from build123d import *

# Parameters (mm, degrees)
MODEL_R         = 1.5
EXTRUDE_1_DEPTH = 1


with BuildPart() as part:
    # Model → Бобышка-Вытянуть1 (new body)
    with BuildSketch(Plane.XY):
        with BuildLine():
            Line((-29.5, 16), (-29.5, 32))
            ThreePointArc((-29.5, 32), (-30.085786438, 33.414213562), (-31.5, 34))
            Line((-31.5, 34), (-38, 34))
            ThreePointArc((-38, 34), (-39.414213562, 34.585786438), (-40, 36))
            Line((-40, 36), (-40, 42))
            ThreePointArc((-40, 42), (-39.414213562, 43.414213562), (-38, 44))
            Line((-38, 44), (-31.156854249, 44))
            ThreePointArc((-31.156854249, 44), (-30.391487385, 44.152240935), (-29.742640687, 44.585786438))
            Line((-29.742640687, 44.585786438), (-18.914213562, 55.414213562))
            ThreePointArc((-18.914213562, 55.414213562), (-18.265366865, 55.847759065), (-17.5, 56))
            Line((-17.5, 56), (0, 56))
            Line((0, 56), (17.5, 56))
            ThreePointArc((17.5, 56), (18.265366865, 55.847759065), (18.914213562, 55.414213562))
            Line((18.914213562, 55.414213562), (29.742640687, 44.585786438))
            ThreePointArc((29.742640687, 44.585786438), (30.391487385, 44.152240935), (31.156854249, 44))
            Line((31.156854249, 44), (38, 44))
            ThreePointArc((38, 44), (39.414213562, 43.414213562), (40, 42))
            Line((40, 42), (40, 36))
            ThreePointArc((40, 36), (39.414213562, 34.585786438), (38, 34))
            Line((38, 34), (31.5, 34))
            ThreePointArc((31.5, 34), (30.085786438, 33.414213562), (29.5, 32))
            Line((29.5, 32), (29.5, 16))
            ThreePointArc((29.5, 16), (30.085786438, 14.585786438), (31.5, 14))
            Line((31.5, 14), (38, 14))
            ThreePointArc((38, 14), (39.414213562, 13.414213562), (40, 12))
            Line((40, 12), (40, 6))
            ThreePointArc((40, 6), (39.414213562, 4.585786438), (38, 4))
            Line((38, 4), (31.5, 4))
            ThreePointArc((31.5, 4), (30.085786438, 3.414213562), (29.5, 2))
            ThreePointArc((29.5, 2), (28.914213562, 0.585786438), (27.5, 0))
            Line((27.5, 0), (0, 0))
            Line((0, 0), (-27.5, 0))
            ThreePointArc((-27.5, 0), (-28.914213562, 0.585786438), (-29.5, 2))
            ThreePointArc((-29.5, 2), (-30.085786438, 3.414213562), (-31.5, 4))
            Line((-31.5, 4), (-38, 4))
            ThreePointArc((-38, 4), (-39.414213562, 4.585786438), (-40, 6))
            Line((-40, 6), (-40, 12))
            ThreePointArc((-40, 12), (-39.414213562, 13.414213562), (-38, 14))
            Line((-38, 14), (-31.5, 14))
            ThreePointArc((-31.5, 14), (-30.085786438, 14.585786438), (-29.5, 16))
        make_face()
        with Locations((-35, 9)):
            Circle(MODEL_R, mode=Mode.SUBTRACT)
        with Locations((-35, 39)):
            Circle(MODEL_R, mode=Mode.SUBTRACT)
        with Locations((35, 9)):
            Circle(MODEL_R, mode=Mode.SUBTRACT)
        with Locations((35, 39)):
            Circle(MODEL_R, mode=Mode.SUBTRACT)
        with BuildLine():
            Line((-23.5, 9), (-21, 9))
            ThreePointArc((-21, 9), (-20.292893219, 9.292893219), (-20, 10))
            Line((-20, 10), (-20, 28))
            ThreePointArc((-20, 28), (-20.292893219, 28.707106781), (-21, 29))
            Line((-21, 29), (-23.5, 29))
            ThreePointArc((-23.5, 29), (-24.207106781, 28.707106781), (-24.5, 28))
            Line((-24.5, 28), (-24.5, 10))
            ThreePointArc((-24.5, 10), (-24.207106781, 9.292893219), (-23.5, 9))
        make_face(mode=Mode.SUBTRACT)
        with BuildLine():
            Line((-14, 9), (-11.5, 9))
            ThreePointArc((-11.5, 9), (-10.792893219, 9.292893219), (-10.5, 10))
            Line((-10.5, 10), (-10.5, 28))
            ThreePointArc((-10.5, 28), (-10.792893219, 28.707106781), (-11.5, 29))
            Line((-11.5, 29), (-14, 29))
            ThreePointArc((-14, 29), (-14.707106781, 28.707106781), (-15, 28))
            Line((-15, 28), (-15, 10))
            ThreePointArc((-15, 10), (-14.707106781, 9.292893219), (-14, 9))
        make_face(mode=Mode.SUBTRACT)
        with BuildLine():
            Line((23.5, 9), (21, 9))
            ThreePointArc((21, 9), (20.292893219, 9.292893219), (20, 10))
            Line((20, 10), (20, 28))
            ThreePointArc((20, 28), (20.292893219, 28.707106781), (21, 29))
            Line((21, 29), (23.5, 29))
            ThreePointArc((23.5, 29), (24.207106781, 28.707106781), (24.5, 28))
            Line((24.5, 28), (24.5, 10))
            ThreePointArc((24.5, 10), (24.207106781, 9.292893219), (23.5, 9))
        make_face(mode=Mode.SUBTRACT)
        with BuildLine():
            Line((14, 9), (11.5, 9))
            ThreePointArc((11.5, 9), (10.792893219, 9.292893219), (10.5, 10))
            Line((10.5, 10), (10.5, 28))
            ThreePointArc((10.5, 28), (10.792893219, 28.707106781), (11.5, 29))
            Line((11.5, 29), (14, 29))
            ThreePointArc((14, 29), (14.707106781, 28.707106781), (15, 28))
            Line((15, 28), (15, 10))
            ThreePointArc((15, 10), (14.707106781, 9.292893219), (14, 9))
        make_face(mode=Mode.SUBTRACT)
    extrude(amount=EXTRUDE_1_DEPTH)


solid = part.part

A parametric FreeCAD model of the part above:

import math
import FreeCAD as App
import Part
import Sketcher
Q = App.Units.Quantity

doc = App.newDocument("Part")
params = doc.addObject("Spreadsheet::Sheet", "Params")
for row, (alias, value) in enumerate([
    ("sketch1_diameter", "3 mm"),
    ("sketch1_radius", "2 mm"),
    ("sketch1_radius2", "1 mm"),
    ("sketch1_width", "55 mm"),
    ("sketch1_width2", "35 mm"),
    ("pad1_length", "1 mm"),
], start=1):
    params.set(f"A{row}", alias)
    params.set(f"B{row}", "=" + value)
    params.setAlias(f"B{row}", alias)

body = doc.addObject("PartDesign::Body", "Body")

# Sketch on XY plane
sketch1 = body.newObject("Sketcher::SketchObject", "Sketch")
sketch1.AttachmentSupport = (doc.getObject("XY_Plane"), [""])
sketch1.MapMode = "FlatFace"
sketch1.addGeometry(Part.LineSegment(App.Vector(-29.5, 32, 0), App.Vector(-29.5, 16, 0)), False)
sketch1.addGeometry(Part.ArcOfCircle(Part.Circle(App.Vector(-31.5, 16, 0), App.Vector(0, 0, 1), 2), math.radians(-90), math.radians(0)), False)
sketch1.addGeometry(Part.LineSegment(App.Vector(-31.5, 14, 0), App.Vector(-38, 14, 0)), False)
sketch1.addGeometry(Part.ArcOfCircle(Part.Circle(App.Vector(-38, 12, 0), App.Vector(0, 0, 1), 2), math.radians(90), math.radians(180)), False)
sketch1.addGeometry(Part.LineSegment(App.Vector(-40, 12, 0), App.Vector(-40, 6, 0)), False)
sketch1.addGeometry(Part.ArcOfCircle(Part.Circle(App.Vector(-38, 6, 0), App.Vector(0, 0, 1), 2), math.radians(-180), math.radians(-90)), False)
sketch1.addGeometry(Part.LineSegment(App.Vector(-38, 4, 0), App.Vector(-31.5, 4, 0)), False)
sketch1.addGeometry(Part.ArcOfCircle(Part.Circle(App.Vector(-31.5, 2, 0), App.Vector(0, 0, 1), 2), math.radians(0), math.radians(90)), False)
sketch1.addGeometry(Part.ArcOfCircle(Part.Circle(App.Vector(-27.5, 2, 0), App.Vector(0, 0, 1), 2), math.radians(-180), math.radians(-90)), False)
sketch1.addGeometry(Part.LineSegment(App.Vector(-27.5, 0, 0), App.Vector(27.5, 0, 0)), False)
sketch1.addGeometry(Part.ArcOfCircle(Part.Circle(App.Vector(27.5, 2, 0), App.Vector(0, 0, 1), 2), math.radians(-90), math.radians(0)), False)
sketch1.addGeometry(Part.ArcOfCircle(Part.Circle(App.Vector(31.5, 2, 0), App.Vector(0, 0, 1), 2), math.radians(90), math.radians(180)), False)
sketch1.addGeometry(Part.LineSegment(App.Vector(31.5, 4, 0), App.Vector(38, 4, 0)), False)
sketch1.addGeometry(Part.ArcOfCircle(Part.Circle(App.Vector(38, 6, 0), App.Vector(0, 0, 1), 2), math.radians(-90), math.radians(0)), False)
sketch1.addGeometry(Part.LineSegment(App.Vector(40, 6, 0), App.Vector(40, 12, 0)), False)
sketch1.addGeometry(Part.ArcOfCircle(Part.Circle(App.Vector(38, 12, 0), App.Vector(0, 0, 1), 2), math.radians(0), math.radians(90)), False)
sketch1.addGeometry(Part.LineSegment(App.Vector(38, 14, 0), App.Vector(31.5, 14, 0)), False)
sketch1.addGeometry(Part.ArcOfCircle(Part.Circle(App.Vector(31.5, 16, 0), App.Vector(0, 0, 1), 2), math.radians(-180), math.radians(-90)), False)
sketch1.addGeometry(Part.LineSegment(App.Vector(29.5, 16, 0), App.Vector(29.5, 32, 0)), False)
sketch1.addGeometry(Part.ArcOfCircle(Part.Circle(App.Vector(31.5, 32, 0), App.Vector(0, 0, 1), 2), math.radians(90), math.radians(180)), False)
sketch1.addGeometry(Part.LineSegment(App.Vector(31.5, 34, 0), App.Vector(38, 34, 0)), False)
sketch1.addGeometry(Part.ArcOfCircle(Part.Circle(App.Vector(38, 36, 0), App.Vector(0, 0, 1), 2), math.radians(-90), math.radians(0)), False)
sketch1.addGeometry(Part.LineSegment(App.Vector(40, 36, 0), App.Vector(40, 42, 0)), False)
sketch1.addGeometry(Part.ArcOfCircle(Part.Circle(App.Vector(38, 42, 0), App.Vector(0, 0, 1), 2), math.radians(0), math.radians(90)), False)
sketch1.addGeometry(Part.LineSegment(App.Vector(38, 44, 0), App.Vector(31.156854, 44, 0)), False)
sketch1.addGeometry(Part.ArcOfCircle(Part.Circle(App.Vector(31.156854, 46, 0), App.Vector(0, 0, 1), 2), math.radians(-135), math.radians(-90)), False)
sketch1.addGeometry(Part.LineSegment(App.Vector(29.742641, 44.585786, 0), App.Vector(18.914214, 55.414214, 0)), False)
sketch1.addGeometry(Part.ArcOfCircle(Part.Circle(App.Vector(17.5, 54, 0), App.Vector(0, 0, 1), 2), math.radians(45), math.radians(90)), False)
sketch1.addGeometry(Part.LineSegment(App.Vector(17.5, 56, 0), App.Vector(-17.5, 56, 0)), False)
sketch1.addGeometry(Part.ArcOfCircle(Part.Circle(App.Vector(-17.5, 54, 0), App.Vector(0, 0, 1), 2), math.radians(90), math.radians(135)), False)
sketch1.addGeometry(Part.LineSegment(App.Vector(-18.914214, 55.414214, 0), App.Vector(-29.742641, 44.585786, 0)), False)
sketch1.addGeometry(Part.ArcOfCircle(Part.Circle(App.Vector(-31.156854, 46, 0), App.Vector(0, 0, 1), 2), math.radians(-90), math.radians(-45)), False)
sketch1.addGeometry(Part.LineSegment(App.Vector(-31.156854, 44, 0), App.Vector(-38, 44, 0)), False)
sketch1.addGeometry(Part.ArcOfCircle(Part.Circle(App.Vector(-38, 42, 0), App.Vector(0, 0, 1), 2), math.radians(90), math.radians(180)), False)
sketch1.addGeometry(Part.LineSegment(App.Vector(-40, 42, 0), App.Vector(-40, 36, 0)), False)
sketch1.addGeometry(Part.ArcOfCircle(Part.Circle(App.Vector(-38, 36, 0), App.Vector(0, 0, 1), 2), math.radians(-180), math.radians(-90)), False)
sketch1.addGeometry(Part.LineSegment(App.Vector(-38, 34, 0), App.Vector(-31.5, 34, 0)), False)
sketch1.addGeometry(Part.ArcOfCircle(Part.Circle(App.Vector(-31.5, 32, 0), App.Vector(0, 0, 1), 2), math.radians(0), math.radians(90)), False)
sketch1.addGeometry(Part.Circle(App.Vector(35, 9, 0), App.Vector(0, 0, 1), 1.5), False)
sketch1.addGeometry(Part.LineSegment(App.Vector(23.5, 9, 0), App.Vector(21, 9, 0)), False)
sketch1.addGeometry(Part.ArcOfCircle(Part.Circle(App.Vector(21, 10, 0), App.Vector(0, 0, 1), 1), math.radians(-180), math.radians(-90)), False)
sketch1.addGeometry(Part.LineSegment(App.Vector(20, 10, 0), App.Vector(20, 28, 0)), False)
sketch1.addGeometry(Part.ArcOfCircle(Part.Circle(App.Vector(21, 28, 0), App.Vector(0, 0, 1), 1), math.radians(90), math.radians(180)), False)
sketch1.addGeometry(Part.LineSegment(App.Vector(21, 29, 0), App.Vector(23.5, 29, 0)), False)
sketch1.addGeometry(Part.ArcOfCircle(Part.Circle(App.Vector(23.5, 28, 0), App.Vector(0, 0, 1), 1), math.radians(0), math.radians(90)), False)
sketch1.addGeometry(Part.LineSegment(App.Vector(24.5, 28, 0), App.Vector(24.5, 10, 0)), False)
sketch1.addGeometry(Part.ArcOfCircle(Part.Circle(App.Vector(23.5, 10, 0), App.Vector(0, 0, 1), 1), math.radians(-90), math.radians(0)), False)
sketch1.addGeometry(Part.LineSegment(App.Vector(14, 9, 0), App.Vector(11.5, 9, 0)), False)
sketch1.addGeometry(Part.ArcOfCircle(Part.Circle(App.Vector(11.5, 10, 0), App.Vector(0, 0, 1), 1), math.radians(-180), math.radians(-90)), False)
sketch1.addGeometry(Part.LineSegment(App.Vector(10.5, 10, 0), App.Vector(10.5, 28, 0)), False)
sketch1.addGeometry(Part.ArcOfCircle(Part.Circle(App.Vector(11.5, 28, 0), App.Vector(0, 0, 1), 1), math.radians(90), math.radians(180)), False)
sketch1.addGeometry(Part.LineSegment(App.Vector(11.5, 29, 0), App.Vector(14, 29, 0)), False)
sketch1.addGeometry(Part.ArcOfCircle(Part.Circle(App.Vector(14, 28, 0), App.Vector(0, 0, 1), 1), math.radians(0), math.radians(90)), False)
sketch1.addGeometry(Part.LineSegment(App.Vector(15, 28, 0), App.Vector(15, 10, 0)), False)
sketch1.addGeometry(Part.ArcOfCircle(Part.Circle(App.Vector(14, 10, 0), App.Vector(0, 0, 1), 1), math.radians(-90), math.radians(0)), False)
sketch1.addGeometry(Part.Circle(App.Vector(-35, 9, 0), App.Vector(0, 0, 1), 1.5), False)
sketch1.addGeometry(Part.ArcOfCircle(Part.Circle(App.Vector(-14, 10, 0), App.Vector(0, 0, 1), 1), math.radians(-180), math.radians(-90)), False)
sketch1.addGeometry(Part.LineSegment(App.Vector(-15, 10, 0), App.Vector(-15, 28, 0)), False)
sketch1.addGeometry(Part.ArcOfCircle(Part.Circle(App.Vector(-14, 28, 0), App.Vector(0, 0, 1), 1), math.radians(90), math.radians(180)), False)
sketch1.addGeometry(Part.LineSegment(App.Vector(-14, 29, 0), App.Vector(-11.5, 29, 0)), False)
sketch1.addGeometry(Part.ArcOfCircle(Part.Circle(App.Vector(-11.5, 28, 0), App.Vector(0, 0, 1), 1), math.radians(0), math.radians(90)), False)
sketch1.addGeometry(Part.LineSegment(App.Vector(-10.5, 28, 0), App.Vector(-10.5, 10, 0)), False)
sketch1.addGeometry(Part.ArcOfCircle(Part.Circle(App.Vector(-11.5, 10, 0), App.Vector(0, 0, 1), 1), math.radians(-90), math.radians(0)), False)
sketch1.addGeometry(Part.LineSegment(App.Vector(-11.5, 9, 0), App.Vector(-14, 9, 0)), False)
sketch1.addGeometry(Part.ArcOfCircle(Part.Circle(App.Vector(-23.5, 10, 0), App.Vector(0, 0, 1), 1), math.radians(-180), math.radians(-90)), False)
sketch1.addGeometry(Part.LineSegment(App.Vector(-24.5, 10, 0), App.Vector(-24.5, 28, 0)), False)
sketch1.addGeometry(Part.ArcOfCircle(Part.Circle(App.Vector(-23.5, 28, 0), App.Vector(0, 0, 1), 1), math.radians(90), math.radians(180)), False)
sketch1.addGeometry(Part.LineSegment(App.Vector(-23.5, 29, 0), App.Vector(-21, 29, 0)), False)
sketch1.addGeometry(Part.ArcOfCircle(Part.Circle(App.Vector(-21, 28, 0), App.Vector(0, 0, 1), 1), math.radians(0), math.radians(90)), False)
sketch1.addGeometry(Part.LineSegment(App.Vector(-20, 28, 0), App.Vector(-20, 10, 0)), False)
sketch1.addGeometry(Part.ArcOfCircle(Part.Circle(App.Vector(-21, 10, 0), App.Vector(0, 0, 1), 1), math.radians(-90), math.radians(0)), False)
sketch1.addGeometry(Part.LineSegment(App.Vector(-21, 9, 0), App.Vector(-23.5, 9, 0)), False)
sketch1.addGeometry(Part.Circle(App.Vector(35, 39, 0), App.Vector(0, 0, 1), 1.5), False)
sketch1.addGeometry(Part.Circle(App.Vector(-35, 39, 0), App.Vector(0, 0, 1), 1.5), False)
sketch1.addConstraint(Sketcher.Constraint("Tangent", 0, 2, 1, 2))
sketch1.addConstraint(Sketcher.Constraint("Tangent", 1, 1, 2, 1))
sketch1.addConstraint(Sketcher.Constraint("Tangent", 2, 2, 3, 1))
sketch1.addConstraint(Sketcher.Constraint("Tangent", 3, 2, 4, 1))
sketch1.addConstraint(Sketcher.Constraint("Tangent", 4, 2, 5, 1))
sketch1.addConstraint(Sketcher.Constraint("Tangent", 5, 2, 6, 1))
sketch1.addConstraint(Sketcher.Constraint("Tangent", 6, 2, 7, 2))
sketch1.addConstraint(Sketcher.Constraint("Tangent", 7, 1, 8, 1))
sketch1.addConstraint(Sketcher.Constraint("Tangent", 8, 2, 9, 1))
sketch1.addConstraint(Sketcher.Constraint("Tangent", 9, 2, 10, 1))
sketch1.addConstraint(Sketcher.Constraint("Tangent", 10, 2, 11, 2))
sketch1.addConstraint(Sketcher.Constraint("Tangent", 11, 1, 12, 1))
sketch1.addConstraint(Sketcher.Constraint("Tangent", 12, 2, 13, 1))
sketch1.addConstraint(Sketcher.Constraint("Tangent", 13, 2, 14, 1))
sketch1.addConstraint(Sketcher.Constraint("Tangent", 14, 2, 15, 1))
sketch1.addConstraint(Sketcher.Constraint("Tangent", 15, 2, 16, 1))
sketch1.addConstraint(Sketcher.Constraint("Tangent", 16, 2, 17, 2))
sketch1.addConstraint(Sketcher.Constraint("Tangent", 17, 1, 18, 1))
sketch1.addConstraint(Sketcher.Constraint("Tangent", 18, 2, 19, 2))
sketch1.addConstraint(Sketcher.Constraint("Tangent", 19, 1, 20, 1))
sketch1.addConstraint(Sketcher.Constraint("Tangent", 20, 2, 21, 1))
sketch1.addConstraint(Sketcher.Constraint("Tangent", 21, 2, 22, 1))
sketch1.addConstraint(Sketcher.Constraint("Tangent", 22, 2, 23, 1))
sketch1.addConstraint(Sketcher.Constraint("Tangent", 23, 2, 24, 1))
sketch1.addConstraint(Sketcher.Constraint("Tangent", 24, 2, 25, 2))
sketch1.addConstraint(Sketcher.Constraint("Tangent", 25, 1, 26, 1))
sketch1.addConstraint(Sketcher.Constraint("Tangent", 26, 2, 27, 1))
sketch1.addConstraint(Sketcher.Constraint("Tangent", 27, 2, 28, 1))
sketch1.addConstraint(Sketcher.Constraint("Tangent", 28, 2, 29, 1))
sketch1.addConstraint(Sketcher.Constraint("Tangent", 29, 2, 30, 1))
sketch1.addConstraint(Sketcher.Constraint("Tangent", 30, 2, 31, 2))
sketch1.addConstraint(Sketcher.Constraint("Tangent", 31, 1, 32, 1))
sketch1.addConstraint(Sketcher.Constraint("Tangent", 32, 2, 33, 1))
sketch1.addConstraint(Sketcher.Constraint("Tangent", 33, 2, 34, 1))
sketch1.addConstraint(Sketcher.Constraint("Tangent", 34, 2, 35, 1))
sketch1.addConstraint(Sketcher.Constraint("Tangent", 35, 2, 36, 1))
sketch1.addConstraint(Sketcher.Constraint("Tangent", 36, 2, 37, 2))
sketch1.addConstraint(Sketcher.Constraint("Tangent", 37, 1, 0, 1))
sketch1.addConstraint(Sketcher.Constraint("Tangent", 39, 2, 40, 2))
sketch1.addConstraint(Sketcher.Constraint("Tangent", 40, 1, 41, 1))
sketch1.addConstraint(Sketcher.Constraint("Tangent", 41, 2, 42, 2))
sketch1.addConstraint(Sketcher.Constraint("Tangent", 42, 1, 43, 1))
sketch1.addConstraint(Sketcher.Constraint("Tangent", 43, 2, 44, 2))
sketch1.addConstraint(Sketcher.Constraint("Tangent", 44, 1, 45, 1))
sketch1.addConstraint(Sketcher.Constraint("Tangent", 45, 2, 46, 2))
sketch1.addConstraint(Sketcher.Constraint("Tangent", 46, 1, 39, 1))
sketch1.addConstraint(Sketcher.Constraint("Tangent", 47, 2, 48, 2))
sketch1.addConstraint(Sketcher.Constraint("Tangent", 48, 1, 49, 1))
sketch1.addConstraint(Sketcher.Constraint("Tangent", 49, 2, 50, 2))
sketch1.addConstraint(Sketcher.Constraint("Tangent", 50, 1, 51, 1))
sketch1.addConstraint(Sketcher.Constraint("Tangent", 51, 2, 52, 2))
sketch1.addConstraint(Sketcher.Constraint("Tangent", 52, 1, 53, 1))
sketch1.addConstraint(Sketcher.Constraint("Tangent", 53, 2, 54, 2))
sketch1.addConstraint(Sketcher.Constraint("Tangent", 54, 1, 47, 1))
sketch1.addConstraint(Sketcher.Constraint("Tangent", 56, 1, 57, 1))
sketch1.addConstraint(Sketcher.Constraint("Tangent", 57, 2, 58, 2))
sketch1.addConstraint(Sketcher.Constraint("Tangent", 58, 1, 59, 1))
sketch1.addConstraint(Sketcher.Constraint("Tangent", 59, 2, 60, 2))
sketch1.addConstraint(Sketcher.Constraint("Tangent", 60, 1, 61, 1))
sketch1.addConstraint(Sketcher.Constraint("Tangent", 61, 2, 62, 2))
sketch1.addConstraint(Sketcher.Constraint("Tangent", 62, 1, 63, 1))
sketch1.addConstraint(Sketcher.Constraint("Tangent", 63, 2, 56, 2))
sketch1.addConstraint(Sketcher.Constraint("Tangent", 64, 1, 65, 1))
sketch1.addConstraint(Sketcher.Constraint("Tangent", 65, 2, 66, 2))
sketch1.addConstraint(Sketcher.Constraint("Tangent", 66, 1, 67, 1))
sketch1.addConstraint(Sketcher.Constraint("Tangent", 67, 2, 68, 2))
sketch1.addConstraint(Sketcher.Constraint("Tangent", 68, 1, 69, 1))
sketch1.addConstraint(Sketcher.Constraint("Tangent", 69, 2, 70, 2))
sketch1.addConstraint(Sketcher.Constraint("Tangent", 70, 1, 71, 1))
sketch1.addConstraint(Sketcher.Constraint("Tangent", 71, 2, 64, 2))
sketch1.addConstraint(Sketcher.Constraint("Vertical", 0))
sketch1.addConstraint(Sketcher.Constraint("Horizontal", 2))
sketch1.addConstraint(Sketcher.Constraint("Vertical", 4))
sketch1.addConstraint(Sketcher.Constraint("Horizontal", 6))
sketch1.addConstraint(Sketcher.Constraint("Horizontal", 9))
sketch1.addConstraint(Sketcher.Constraint("Horizontal", 12))
sketch1.addConstraint(Sketcher.Constraint("Vertical", 14))
sketch1.addConstraint(Sketcher.Constraint("Horizontal", 16))
sketch1.addConstraint(Sketcher.Constraint("Vertical", 18))
sketch1.addConstraint(Sketcher.Constraint("Horizontal", 20))
sketch1.addConstraint(Sketcher.Constraint("Vertical", 22))
sketch1.addConstraint(Sketcher.Constraint("Horizontal", 24))
sketch1.addConstraint(Sketcher.Constraint("Horizontal", 28))
sketch1.addConstraint(Sketcher.Constraint("Horizontal", 32))
sketch1.addConstraint(Sketcher.Constraint("Vertical", 34))
sketch1.addConstraint(Sketcher.Constraint("Horizontal", 36))
sketch1.addConstraint(Sketcher.Constraint("Horizontal", 39))
sketch1.addConstraint(Sketcher.Constraint("Vertical", 41))
sketch1.addConstraint(Sketcher.Constraint("Horizontal", 43))
sketch1.addConstraint(Sketcher.Constraint("Vertical", 45))
sketch1.addConstraint(Sketcher.Constraint("Horizontal", 47))
sketch1.addConstraint(Sketcher.Constraint("Vertical", 49))
sketch1.addConstraint(Sketcher.Constraint("Horizontal", 51))
sketch1.addConstraint(Sketcher.Constraint("Vertical", 53))
sketch1.addConstraint(Sketcher.Constraint("Vertical", 57))
sketch1.addConstraint(Sketcher.Constraint("Horizontal", 59))
sketch1.addConstraint(Sketcher.Constraint("Vertical", 61))
sketch1.addConstraint(Sketcher.Constraint("Horizontal", 63))
sketch1.addConstraint(Sketcher.Constraint("Vertical", 65))
sketch1.addConstraint(Sketcher.Constraint("Horizontal", 67))
sketch1.addConstraint(Sketcher.Constraint("Vertical", 69))
sketch1.addConstraint(Sketcher.Constraint("Horizontal", 71))
sketch1.addConstraint(Sketcher.Constraint("Equal", 1, 3))
sketch1.addConstraint(Sketcher.Constraint("Equal", 3, 5))
sketch1.addConstraint(Sketcher.Constraint("Equal", 5, 7))
sketch1.addConstraint(Sketcher.Constraint("Equal", 7, 8))
sketch1.addConstraint(Sketcher.Constraint("Equal", 8, 10))
sketch1.addConstraint(Sketcher.Constraint("Equal", 10, 11))
sketch1.addConstraint(Sketcher.Constraint("Equal", 11, 13))
sketch1.addConstraint(Sketcher.Constraint("Equal", 13, 15))
sketch1.addConstraint(Sketcher.Constraint("Equal", 15, 17))
sketch1.addConstraint(Sketcher.Constraint("Equal", 17, 19))
sketch1.addConstraint(Sketcher.Constraint("Equal", 19, 21))
sketch1.addConstraint(Sketcher.Constraint("Equal", 21, 23))
sketch1.addConstraint(Sketcher.Constraint("Equal", 23, 25))
sketch1.addConstraint(Sketcher.Constraint("Equal", 25, 27))
sketch1.addConstraint(Sketcher.Constraint("Equal", 27, 29))
sketch1.addConstraint(Sketcher.Constraint("Equal", 29, 31))
sketch1.addConstraint(Sketcher.Constraint("Equal", 31, 33))
sketch1.addConstraint(Sketcher.Constraint("Equal", 33, 35))
sketch1.addConstraint(Sketcher.Constraint("Equal", 35, 37))
sketch1.addConstraint(Sketcher.Constraint("Equal", 40, 42))
sketch1.addConstraint(Sketcher.Constraint("Equal", 42, 44))
sketch1.addConstraint(Sketcher.Constraint("Equal", 44, 46))
sketch1.addConstraint(Sketcher.Constraint("Equal", 46, 48))
sketch1.addConstraint(Sketcher.Constraint("Equal", 48, 50))
sketch1.addConstraint(Sketcher.Constraint("Equal", 50, 52))
sketch1.addConstraint(Sketcher.Constraint("Equal", 52, 54))
sketch1.addConstraint(Sketcher.Constraint("Equal", 38, 55))
sketch1.addConstraint(Sketcher.Constraint("Equal", 54, 56))
sketch1.addConstraint(Sketcher.Constraint("Equal", 56, 58))
sketch1.addConstraint(Sketcher.Constraint("Equal", 58, 60))
sketch1.addConstraint(Sketcher.Constraint("Equal", 60, 62))
sketch1.addConstraint(Sketcher.Constraint("Equal", 62, 64))
sketch1.addConstraint(Sketcher.Constraint("Equal", 64, 66))
sketch1.addConstraint(Sketcher.Constraint("Equal", 66, 68))
sketch1.addConstraint(Sketcher.Constraint("Equal", 68, 70))
sketch1.addConstraint(Sketcher.Constraint("Equal", 55, 72))
sketch1.addConstraint(Sketcher.Constraint("Equal", 72, 73))
sketch1.addConstraint(Sketcher.Constraint("Symmetric", 8, 2, 9, 2, -1, 1))
sketch1.addConstraint(Sketcher.Constraint("Symmetric", 5, 3, 13, 3, -2))
sketch1.addConstraint(Sketcher.Constraint("Symmetric", 1, 3, 17, 3, -2))
sketch1.addConstraint(Sketcher.Constraint("Symmetric", 25, 3, 31, 3, -2))
sketch1.addConstraint(Sketcher.Constraint("Symmetric", 21, 3, 35, 3, -2))
sketch1.addConstraint(Sketcher.Constraint("Symmetric", 38, 3, 55, 3, -2))
sketch1.addConstraint(Sketcher.Constraint("Symmetric", 54, 3, 56, 3, -2))
sketch1.addConstraint(Sketcher.Constraint("Symmetric", 50, 3, 60, 3, -2))
sketch1.addConstraint(Sketcher.Constraint("Symmetric", 46, 3, 64, 3, -2))
sketch1.addConstraint(Sketcher.Constraint("Symmetric", 42, 3, 68, 3, -2))
sketch1.addConstraint(Sketcher.Constraint("Symmetric", 72, 3, 73, 3, -2))
sketch1.addConstraint(Sketcher.Constraint("Perpendicular", 26, 30))
sketch1.addConstraint(Sketcher.Constraint("Horizontal", 7, 3, 8, 3))
sketch1.addConstraint(Sketcher.Constraint("Horizontal", 46, 3, 48, 3))
sketch1.addConstraint(Sketcher.Constraint("Horizontal", 44, 3, 50, 3))
sketch1.addConstraint(Sketcher.Constraint("Horizontal", 26, 2, 29, 2))
sketch1.addConstraint(Sketcher.Constraint("Horizontal", 55, 3, 39, 2))
sketch1.addConstraint(Sketcher.Constraint("Vertical", 1, 3, 7, 3))
sketch1.addConstraint(Sketcher.Constraint("Vertical", 15, 3, 21, 3))
sketch1.addConstraint(Sketcher.Constraint("Vertical", 38, 3, 72, 3))
sketch1.addConstraint(Sketcher.Constraint("Equal", 43, 47))
sketch1.addConstraint(Sketcher.Constraint("Equal", 14, 22))
sketch1.addConstraint(Sketcher.Constraint("Diameter", 38, Q("3 mm")))
sketch1.addConstraint(Sketcher.Constraint("Radius", 1, Q("2 mm")))
sketch1.addConstraint(Sketcher.Constraint("Radius", 40, Q("1 mm")))
sketch1.addConstraint(Sketcher.Constraint("DistanceX", 9, 1, 9, 2, Q("55 mm")))
sketch1.addConstraint(Sketcher.Constraint("DistanceX", 28, 2, 28, 1, Q("35 mm")))
sketch1.addConstraint(Sketcher.Constraint("DistanceY", 0, 2, 0, 1, Q("16 mm")))
sketch1.addConstraint(Sketcher.Constraint("DistanceY", 4, 2, 4, 1, Q("6 mm")))
sketch1.addConstraint(Sketcher.Constraint("DistanceY", 41, 1, 41, 2, Q("18 mm")))
sketch1.addConstraint(Sketcher.Constraint("DistanceX", 2, 2, 2, 1, Q("6.5 mm")))
sketch1.addConstraint(Sketcher.Constraint("DistanceX", 39, 2, 39, 1, Q("2.5 mm")))
sketch1.addConstraint(Sketcher.Constraint("DistanceY", -1, 1, 27, 3, Q("54 mm")))
sketch1.addConstraint(Sketcher.Constraint("DistanceX", -1, 1, 38, 3, Q("35 mm")))
sketch1.addConstraint(Sketcher.Constraint("DistanceY", -1, 1, 38, 3, Q("9 mm")))
sketch1.addConstraint(Sketcher.Constraint("DistanceX", -1, 1, 40, 3, Q("21 mm")))
sketch1.addConstraint(Sketcher.Constraint("DistanceX", -1, 1, 52, 3, Q("14 mm")))
sketch1.addConstraint(Sketcher.Constraint("DistanceY", -1, 1, 72, 3, Q("39 mm")))
sketch1.setExpression("Constraints[161]", "Params.sketch1_diameter")
sketch1.setExpression("Constraints[162]", "Params.sketch1_radius")
sketch1.setExpression("Constraints[163]", "Params.sketch1_radius2")
sketch1.setExpression("Constraints[164]", "Params.sketch1_width")
sketch1.setExpression("Constraints[165]", "Params.sketch1_width2")
pad1 = body.newObject("PartDesign::Pad", "Pad")
pad1.Profile = sketch1
pad1.setExpression("Length", "Params.pad1_length")

doc.recompute()
